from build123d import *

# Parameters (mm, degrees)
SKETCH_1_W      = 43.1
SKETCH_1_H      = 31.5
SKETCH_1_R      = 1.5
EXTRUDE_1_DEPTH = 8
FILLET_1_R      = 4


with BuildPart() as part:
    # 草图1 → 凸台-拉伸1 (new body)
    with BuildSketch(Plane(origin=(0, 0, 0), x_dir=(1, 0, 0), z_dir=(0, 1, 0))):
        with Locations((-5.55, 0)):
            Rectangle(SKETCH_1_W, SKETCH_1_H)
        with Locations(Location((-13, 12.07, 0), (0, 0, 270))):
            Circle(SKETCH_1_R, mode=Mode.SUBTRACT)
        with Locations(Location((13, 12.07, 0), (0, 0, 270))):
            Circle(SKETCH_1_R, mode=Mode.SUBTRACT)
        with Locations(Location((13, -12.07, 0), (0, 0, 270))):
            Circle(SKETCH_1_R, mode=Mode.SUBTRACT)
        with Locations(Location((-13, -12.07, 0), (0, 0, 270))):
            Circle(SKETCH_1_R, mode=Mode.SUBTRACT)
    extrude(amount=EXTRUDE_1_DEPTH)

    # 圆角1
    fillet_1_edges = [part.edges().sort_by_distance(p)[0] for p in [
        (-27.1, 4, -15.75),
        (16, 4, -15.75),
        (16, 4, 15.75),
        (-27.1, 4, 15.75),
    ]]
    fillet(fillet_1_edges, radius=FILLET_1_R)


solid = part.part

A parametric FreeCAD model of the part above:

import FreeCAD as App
import Part
import Sketcher


def edges_at(feature, points):
    """Names of the edges that pass closest to the given points."""
    edges = feature.Shape.Edges
    near = lambda p: min(range(len(edges)), key=lambda i: edges[i].distToShape(Part.Vertex(*p))[0])
    return sorted({f"Edge{near(p) + 1}" for p in points})

doc = App.newDocument("Part")
body = doc.addObject("PartDesign::Body", "Body")

# Sketch on XZ plane
sketch1 = body.newObject("Sketcher::SketchObject", "Sketch")
sketch1.AttachmentSupport = (doc.getObject("XZ_Plane"), [""])
sketch1.MapMode = "FlatFace"
sketch1.addGeometry(Part.LineSegment(App.Vector(-27.1, -15.8, 0), App.Vector(-27.1, 15.8, 0)), False)
sketch1.addGeometry(Part.LineSegment(App.Vector(-27.1, 15.8, 0), App.Vector(16, 15.8, 0)), False)
sketch1.addGeometry(Part.LineSegment(App.Vector(16, 15.8, 0), App.Vector(16, -15.8, 0)), False)
sketch1.addGeometry(Part.LineSegment(App.Vector(16, -15.8, 0), App.Vector(-27.1, -15.8, 0)), False)
sketch1.addGeometry(Part.Circle(App.Vector(-13, 12.1, 0), App.Vector(0, 0, 1), 1.5), False)
sketch1.addGeometry(Part.Circle(App.Vector(13, 12.1, 0), App.Vector(0, 0, 1), 1.5), False)
sketch1.addGeometry(Part.Circle(App.Vector(-13, -12.1, 0), App.Vector(0, 0, 1), 1.5), False)
sketch1.addGeometry(Part.Circle(App.Vector(13, -12.1, 0), App.Vector(0, 0, 1), 1.5), False)
sketch1.addConstraint(Sketcher.Constraint("Coincident", 0, 2, 1, 1))
sketch1.addConstraint(Sketcher.Constraint("Coincident", 1, 2, 2, 1))
sketch1.addConstraint(Sketcher.Constraint("Coincident", 2, 2, 3, 1))
sketch1.addConstraint(Sketcher.Constraint("Coincident", 3, 2, 0, 1))
sketch1.addConstraint(Sketcher.Constraint("Vertical", 0))
sketch1.addConstraint(Sketcher.Constraint("Horizontal", 1))
sketch1.addConstraint(Sketcher.Constraint("Vertical", 2))
sketch1.addConstraint(Sketcher.Constraint("Horizontal", 3))
sketch1.addConstraint(Sketcher.Constraint("Equal", 4, 5))
sketch1.addConstraint(Sketcher.Constraint("Equal", 5, 6))
sketch1.addConstraint(Sketcher.Constraint("Equal", 6, 7))
sketch1.addConstraint(Sketcher.Constraint("Symmetric", 5, 3, 6, 3, -1, 1))
sketch1.addConstraint(Sketcher.Constraint("Symmetric", 4, 3, 7, 3, -1, 1))
sketch1.addConstraint(Sketcher.Constraint("Symmetric", 4, 3, 5, 3, -2))
sketch1.addConstraint(Sketcher.Constraint("Diameter", 4, 3.0))
sketch1.addConstraint(Sketcher.Constraint("DistanceX", 1, 1, 1, 2, 43.1))
sketch1.addConstraint(Sketcher.Constraint("DistanceY", 0, 1, 0, 2, 31.5))
sketch1.addConstraint(Sketcher.Constraint("DistanceX", 4, 3, -1, 1, 13.0))
sketch1.addConstraint(Sketcher.Constraint("DistanceX", -1, 1, 1, 2, 16.0))
sketch1.addConstraint(Sketcher.Constraint("DistanceY", -1, 1, 4, 3, 12.07))
sketch1.addConstraint(Sketcher.Constraint("DistanceY", -1, 1, 0, 2, 15.75))
pad1 = body.newObject("PartDesign::Pad", "Pad")
pad1.Profile = sketch1
pad1.Length = 8
pad1.Reversed = True
doc.recompute()

fillet = body.newObject("PartDesign::Fillet", "Fillet")
fillet.Base = (pad1, edges_at(pad1, [
    (-27.1, 4, -15.75),
    (16, 4, -15.75),
    (16, 4, 15.75),
    (-27.1, 4, 15.75),
]))
fillet.Radius = 4

doc.recompute()
